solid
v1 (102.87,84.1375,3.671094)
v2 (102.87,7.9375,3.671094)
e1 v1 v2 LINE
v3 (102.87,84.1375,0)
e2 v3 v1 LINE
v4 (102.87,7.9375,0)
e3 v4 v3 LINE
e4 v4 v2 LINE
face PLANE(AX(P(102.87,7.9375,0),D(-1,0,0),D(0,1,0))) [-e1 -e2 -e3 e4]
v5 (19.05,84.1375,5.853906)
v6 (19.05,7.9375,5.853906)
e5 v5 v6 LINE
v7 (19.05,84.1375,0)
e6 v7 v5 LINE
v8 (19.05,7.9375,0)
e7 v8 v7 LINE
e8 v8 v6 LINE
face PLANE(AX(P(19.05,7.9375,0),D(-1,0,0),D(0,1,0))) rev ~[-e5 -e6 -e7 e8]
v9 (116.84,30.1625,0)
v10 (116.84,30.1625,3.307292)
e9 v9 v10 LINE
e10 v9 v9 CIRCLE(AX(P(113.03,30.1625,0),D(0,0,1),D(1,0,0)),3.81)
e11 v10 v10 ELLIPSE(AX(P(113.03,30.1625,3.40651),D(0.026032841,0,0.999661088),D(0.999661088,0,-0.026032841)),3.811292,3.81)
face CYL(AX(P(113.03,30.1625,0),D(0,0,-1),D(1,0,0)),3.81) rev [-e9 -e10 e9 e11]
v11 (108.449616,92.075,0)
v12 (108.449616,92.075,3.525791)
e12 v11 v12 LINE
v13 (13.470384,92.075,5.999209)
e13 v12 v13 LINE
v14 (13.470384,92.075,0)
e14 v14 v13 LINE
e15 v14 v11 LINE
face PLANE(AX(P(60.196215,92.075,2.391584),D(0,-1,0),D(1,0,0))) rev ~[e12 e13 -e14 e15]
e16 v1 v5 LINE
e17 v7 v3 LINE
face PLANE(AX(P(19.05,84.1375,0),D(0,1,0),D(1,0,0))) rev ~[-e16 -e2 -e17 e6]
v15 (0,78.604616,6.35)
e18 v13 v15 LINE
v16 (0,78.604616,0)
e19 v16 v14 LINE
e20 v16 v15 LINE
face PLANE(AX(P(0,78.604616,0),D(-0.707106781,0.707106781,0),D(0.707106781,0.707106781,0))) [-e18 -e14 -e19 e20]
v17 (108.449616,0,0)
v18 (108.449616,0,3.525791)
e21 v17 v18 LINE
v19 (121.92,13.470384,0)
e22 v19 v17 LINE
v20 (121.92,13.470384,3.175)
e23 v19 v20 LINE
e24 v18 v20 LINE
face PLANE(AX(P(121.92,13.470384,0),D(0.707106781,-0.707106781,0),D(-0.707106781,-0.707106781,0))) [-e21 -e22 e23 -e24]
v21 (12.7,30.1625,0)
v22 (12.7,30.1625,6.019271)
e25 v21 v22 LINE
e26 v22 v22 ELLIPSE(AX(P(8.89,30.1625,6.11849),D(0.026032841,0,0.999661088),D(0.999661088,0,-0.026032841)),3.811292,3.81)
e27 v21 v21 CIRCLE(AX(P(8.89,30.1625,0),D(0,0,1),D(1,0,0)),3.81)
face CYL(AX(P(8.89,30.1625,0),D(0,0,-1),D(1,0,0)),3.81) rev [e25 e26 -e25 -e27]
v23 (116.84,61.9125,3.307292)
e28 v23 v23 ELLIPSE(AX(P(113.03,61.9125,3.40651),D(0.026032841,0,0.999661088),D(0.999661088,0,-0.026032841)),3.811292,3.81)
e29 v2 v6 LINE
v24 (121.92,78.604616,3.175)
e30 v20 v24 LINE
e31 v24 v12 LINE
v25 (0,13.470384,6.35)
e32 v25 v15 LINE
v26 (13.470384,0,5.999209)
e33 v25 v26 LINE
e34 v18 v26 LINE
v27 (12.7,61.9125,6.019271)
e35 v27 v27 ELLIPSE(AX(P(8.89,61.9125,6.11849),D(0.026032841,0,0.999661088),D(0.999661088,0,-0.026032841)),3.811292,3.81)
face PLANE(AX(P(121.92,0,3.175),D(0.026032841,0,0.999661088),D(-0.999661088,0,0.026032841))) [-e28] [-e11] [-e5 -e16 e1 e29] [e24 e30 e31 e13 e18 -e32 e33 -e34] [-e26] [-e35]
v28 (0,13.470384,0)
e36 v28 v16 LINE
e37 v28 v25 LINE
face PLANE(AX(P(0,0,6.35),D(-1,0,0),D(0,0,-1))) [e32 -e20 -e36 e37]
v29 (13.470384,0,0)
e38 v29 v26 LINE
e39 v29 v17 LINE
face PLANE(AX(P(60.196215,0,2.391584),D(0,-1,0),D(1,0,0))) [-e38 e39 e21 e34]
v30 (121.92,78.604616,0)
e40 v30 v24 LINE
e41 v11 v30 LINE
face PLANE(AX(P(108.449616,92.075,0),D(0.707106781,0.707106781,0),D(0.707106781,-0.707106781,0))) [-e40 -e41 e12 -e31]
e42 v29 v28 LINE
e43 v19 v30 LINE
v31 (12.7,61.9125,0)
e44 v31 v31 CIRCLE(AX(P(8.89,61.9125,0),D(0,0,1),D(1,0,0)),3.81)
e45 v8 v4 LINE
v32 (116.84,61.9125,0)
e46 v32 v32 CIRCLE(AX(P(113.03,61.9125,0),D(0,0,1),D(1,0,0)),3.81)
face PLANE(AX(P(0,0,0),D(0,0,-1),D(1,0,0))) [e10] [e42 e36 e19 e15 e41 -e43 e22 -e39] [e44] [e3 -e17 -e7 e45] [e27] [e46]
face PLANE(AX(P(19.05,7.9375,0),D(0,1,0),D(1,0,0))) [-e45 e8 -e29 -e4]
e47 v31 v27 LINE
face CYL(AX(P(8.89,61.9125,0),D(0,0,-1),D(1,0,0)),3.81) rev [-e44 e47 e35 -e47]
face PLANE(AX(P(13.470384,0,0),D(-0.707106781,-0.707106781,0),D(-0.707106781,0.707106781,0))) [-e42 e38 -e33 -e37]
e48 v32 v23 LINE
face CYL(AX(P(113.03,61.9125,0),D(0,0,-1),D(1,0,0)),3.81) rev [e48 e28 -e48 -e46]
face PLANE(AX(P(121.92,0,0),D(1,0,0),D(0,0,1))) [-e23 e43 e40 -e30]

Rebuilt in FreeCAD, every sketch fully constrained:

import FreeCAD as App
import Part
import Sketcher
from FreeCAD import Vector
Q = App.Units.Quantity

doc = App.newDocument("Part")
body = doc.addObject("PartDesign::Body", "Body")

sketch1 = body.newObject("Sketcher::SketchObject", "Sketch")
sketch1.AttachmentSupport = (doc.getObject("XZ_Plane"), [""])
sketch1.MapMode = "FlatFace"
sketch1.addGeometry([
    Part.LineSegment(Vector(0, 6.3, 0), Vector(0, 0, 0)),
    Part.LineSegment(Vector(0, 0, 0), Vector(121.9, 0, 0)),
    Part.LineSegment(Vector(121.9, 0, 0), Vector(121.9, 3.2, 0)),
    Part.LineSegment(Vector(121.9, 3.2, 0), Vector(0, 6.3, 0)),
], False)
sketch1.addConstraint([
    Sketcher.Constraint("Coincident", 0, 2, 1, 1),
    Sketcher.Constraint("Coincident", 1, 2, 2, 1),
    Sketcher.Constraint("Coincident", 2, 2, 3, 1),
    Sketcher.Constraint("Coincident", 3, 2, 0, 1),
    Sketcher.Constraint("Vertical", 0),
    Sketcher.Constraint("Horizontal", 1),
    Sketcher.Constraint("Vertical", 2),
    Sketcher.Constraint("Coincident", 0, 2, -1, 1),
    Sketcher.Constraint("DistanceX", 1, 1, 1, 2, Q("4.8 in")),
    Sketcher.Constraint("DistanceY", 0, 2, 0, 1, Q("0.25 in")),
    Sketcher.Constraint("DistanceY", 2, 1, 2, 2, Q("0.125 in")),
])
pad1 = body.newObject("PartDesign::Pad", "Pad")
pad1.Profile = sketch1
pad1.Length = Q("3.625 in")
pad1.Reversed = True

sketch2 = body.newObject("Sketcher::SketchObject", "Sketch001")
sketch2.AttachmentSupport = (doc.getObject("XY_Plane"), [""])
sketch2.MapMode = "FlatFace"
sketch2.addGeometry([
    Part.Circle(Vector(8.9, 61.9, 0), Vector(0, 0, 1), 3.8),
    Part.Circle(Vector(8.9, 30.2, 0), Vector(0, 0, 1), 3.8),
    Part.Circle(Vector(113, 30.2, 0), Vector(0, 0, 1), 3.8),
    Part.Circle(Vector(113, 61.9, 0), Vector(0, 0, 1), 3.8),
    Part.LineSegment(Vector(19.1, 84.1, 0), Vector(19.1, 7.9, 0)),
    Part.LineSegment(Vector(19.1, 7.9, 0), Vector(102.9, 7.9, 0)),
    Part.LineSegment(Vector(102.9, 7.9, 0), Vector(102.9, 84.1, 0)),
    Part.LineSegment(Vector(102.9, 84.1, 0), Vector(19.1, 84.1, 0)),
    Part.LineSegment(Vector(121.9, 92.1, 0), Vector(108.4, 92.1, 0)),
    Part.LineSegment(Vector(108.4, 92.1, 0), Vector(121.9, 78.6, 0)),
    Part.LineSegment(Vector(121.9, 78.6, 0), Vector(121.9, 92.1, 0)),
    Part.LineSegment(Vector(0, 92.1, 0), Vector(0, 78.6, 0)),
    Part.LineSegment(Vector(0, 78.6, 0), Vector(13.5, 92.1, 0)),
    Part.LineSegment(Vector(13.5, 92.1, 0), Vector(0, 92.1, 0)),
    Part.LineSegment(Vector(0, 13.5, 0), Vector(0, 0, 0)),
    Part.LineSegment(Vector(0, 0, 0), Vector(13.5, 0, 0)),
    Part.LineSegment(Vector(13.5, 0, 0), Vector(0, 13.5, 0)),
    Part.LineSegment(Vector(121.9, 13.5, 0), Vector(108.4, 0, 0)),
    Part.LineSegment(Vector(108.4, 0, 0), Vector(121.9, 0, 0)),
    Part.LineSegment(Vector(121.9, 0, 0), Vector(121.9, 13.5, 0)),
], False)
sketch2.addConstraint([
    Sketcher.Constraint("Coincident", 4, 2, 5, 1),
    Sketcher.Constraint("Coincident", 5, 2, 6, 1),
    Sketcher.Constraint("Coincident", 6, 2, 7, 1),
    Sketcher.Constraint("Coincident", 7, 2, 4, 1),
    Sketcher.Constraint("Coincident", 8, 2, 9, 1),
    Sketcher.Constraint("Coincident", 9, 2, 10, 1),
    Sketcher.Constraint("Coincident", 10, 2, 8, 1),
    Sketcher.Constraint("Coincident", 11, 2, 12, 1),
    Sketcher.Constraint("Coincident", 12, 2, 13, 1),
    Sketcher.Constraint("Coincident", 13, 2, 11, 1),
    Sketcher.Constraint("Coincident", 14, 2, 15, 1),
    Sketcher.Constraint("Coincident", 15, 2, 16, 1),
    Sketcher.Constraint("Coincident", 16, 2, 14, 1),
    Sketcher.Constraint("Coincident", 17, 2, 18, 1),
    Sketcher.Constraint("Coincident", 18, 2, 19, 1),
    Sketcher.Constraint("Coincident", 19, 2, 17, 1),
    Sketcher.Constraint("Vertical", 4),
    Sketcher.Constraint("Horizontal", 5),
    Sketcher.Constraint("Vertical", 6),
    Sketcher.Constraint("Horizontal", 7),
    Sketcher.Constraint("Horizontal", 8),
    Sketcher.Constraint("Vertical", 10),
    Sketcher.Constraint("Vertical", 11),
    Sketcher.Constraint("Horizontal", 13),
    Sketcher.Constraint("Vertical", 14),
    Sketcher.Constraint("Horizontal", 15),
    Sketcher.Constraint("Horizontal", 18),
    Sketcher.Constraint("Vertical", 19),
    Sketcher.Constraint("Coincident", 14, 2, -1, 1),
    Sketcher.Constraint("Equal", 0, 1),
    Sketcher.Constraint("Equal", 1, 2),
    Sketcher.Constraint("Equal", 2, 3),
    Sketcher.Constraint("PointOnObject", 11, 2, -2),
    Sketcher.Constraint("PointOnObject", 17, 2, -1),
    Sketcher.Constraint("Perpendicular", 9, 12),
    Sketcher.Constraint("Perpendicular", 12, 16),
    Sketcher.Constraint("Perpendicular", 16, 17),
    Sketcher.Constraint("Horizontal", 1, 3, 2, 3),
    Sketcher.Constraint("Horizontal", 0, 3, 3, 3),
    Sketcher.Constraint("Horizontal", 9, 2, 11, 2),
    Sketcher.Constraint("Horizontal", 10, 2, 12, 2),
    Sketcher.Constraint("Horizontal", 16, 2, 19, 2),
    Sketcher.Constraint("Vertical", 0, 3, 1, 3),
    Sketcher.Constraint("Vertical", 2, 3, 3, 3),
    Sketcher.Constraint("Vertical", 12, 2, 15, 2),
    Sketcher.Constraint("Vertical", 8, 2, 17, 2),
    Sketcher.Constraint("Vertical", 10, 2, 18, 2),
    Sketcher.Constraint("Diameter", 0, Q("0.3 in")),
    Sketcher.Constraint("DistanceY", 4, 2, 4, 1, Q("3 in")),
    Sketcher.Constraint("DistanceX", 5, 1, 5, 2, Q("3.3 in")),
    Sketcher.Constraint("DistanceX", -1, 1, 9, 2, Q("4.8 in")),
    Sketcher.Constraint("DistanceX", 1, 3, 2, 3, Q("4.1 in")),
    Sketcher.Constraint("DistanceX", 1, 3, 4, 2, Q("0.4 in")),
    Sketcher.Constraint("Distance", 9, Q("0.75 in")),
    Sketcher.Constraint("DistanceX", -1, 1, 0, 3, Q("0.35 in")),
    Sketcher.Constraint("DistanceY", 1, 3, 0, 3, Q("1.25 in")),
    Sketcher.Constraint("DistanceY", -1, 1, 0, 3, Q("2.4375 in")),
    Sketcher.Constraint("DistanceY", -1, 1, 4, 2, Q("0.3125 in")),
    Sketcher.Constraint("DistanceY", -1, 1, 8, 2, Q("3.625 in")),
])
pocket1 = body.newObject("PartDesign::Pocket", "Pocket")
pocket1.Profile = sketch2
pocket1.Length = Q("1 in")
pocket1.Reversed = True

doc.recompute()
